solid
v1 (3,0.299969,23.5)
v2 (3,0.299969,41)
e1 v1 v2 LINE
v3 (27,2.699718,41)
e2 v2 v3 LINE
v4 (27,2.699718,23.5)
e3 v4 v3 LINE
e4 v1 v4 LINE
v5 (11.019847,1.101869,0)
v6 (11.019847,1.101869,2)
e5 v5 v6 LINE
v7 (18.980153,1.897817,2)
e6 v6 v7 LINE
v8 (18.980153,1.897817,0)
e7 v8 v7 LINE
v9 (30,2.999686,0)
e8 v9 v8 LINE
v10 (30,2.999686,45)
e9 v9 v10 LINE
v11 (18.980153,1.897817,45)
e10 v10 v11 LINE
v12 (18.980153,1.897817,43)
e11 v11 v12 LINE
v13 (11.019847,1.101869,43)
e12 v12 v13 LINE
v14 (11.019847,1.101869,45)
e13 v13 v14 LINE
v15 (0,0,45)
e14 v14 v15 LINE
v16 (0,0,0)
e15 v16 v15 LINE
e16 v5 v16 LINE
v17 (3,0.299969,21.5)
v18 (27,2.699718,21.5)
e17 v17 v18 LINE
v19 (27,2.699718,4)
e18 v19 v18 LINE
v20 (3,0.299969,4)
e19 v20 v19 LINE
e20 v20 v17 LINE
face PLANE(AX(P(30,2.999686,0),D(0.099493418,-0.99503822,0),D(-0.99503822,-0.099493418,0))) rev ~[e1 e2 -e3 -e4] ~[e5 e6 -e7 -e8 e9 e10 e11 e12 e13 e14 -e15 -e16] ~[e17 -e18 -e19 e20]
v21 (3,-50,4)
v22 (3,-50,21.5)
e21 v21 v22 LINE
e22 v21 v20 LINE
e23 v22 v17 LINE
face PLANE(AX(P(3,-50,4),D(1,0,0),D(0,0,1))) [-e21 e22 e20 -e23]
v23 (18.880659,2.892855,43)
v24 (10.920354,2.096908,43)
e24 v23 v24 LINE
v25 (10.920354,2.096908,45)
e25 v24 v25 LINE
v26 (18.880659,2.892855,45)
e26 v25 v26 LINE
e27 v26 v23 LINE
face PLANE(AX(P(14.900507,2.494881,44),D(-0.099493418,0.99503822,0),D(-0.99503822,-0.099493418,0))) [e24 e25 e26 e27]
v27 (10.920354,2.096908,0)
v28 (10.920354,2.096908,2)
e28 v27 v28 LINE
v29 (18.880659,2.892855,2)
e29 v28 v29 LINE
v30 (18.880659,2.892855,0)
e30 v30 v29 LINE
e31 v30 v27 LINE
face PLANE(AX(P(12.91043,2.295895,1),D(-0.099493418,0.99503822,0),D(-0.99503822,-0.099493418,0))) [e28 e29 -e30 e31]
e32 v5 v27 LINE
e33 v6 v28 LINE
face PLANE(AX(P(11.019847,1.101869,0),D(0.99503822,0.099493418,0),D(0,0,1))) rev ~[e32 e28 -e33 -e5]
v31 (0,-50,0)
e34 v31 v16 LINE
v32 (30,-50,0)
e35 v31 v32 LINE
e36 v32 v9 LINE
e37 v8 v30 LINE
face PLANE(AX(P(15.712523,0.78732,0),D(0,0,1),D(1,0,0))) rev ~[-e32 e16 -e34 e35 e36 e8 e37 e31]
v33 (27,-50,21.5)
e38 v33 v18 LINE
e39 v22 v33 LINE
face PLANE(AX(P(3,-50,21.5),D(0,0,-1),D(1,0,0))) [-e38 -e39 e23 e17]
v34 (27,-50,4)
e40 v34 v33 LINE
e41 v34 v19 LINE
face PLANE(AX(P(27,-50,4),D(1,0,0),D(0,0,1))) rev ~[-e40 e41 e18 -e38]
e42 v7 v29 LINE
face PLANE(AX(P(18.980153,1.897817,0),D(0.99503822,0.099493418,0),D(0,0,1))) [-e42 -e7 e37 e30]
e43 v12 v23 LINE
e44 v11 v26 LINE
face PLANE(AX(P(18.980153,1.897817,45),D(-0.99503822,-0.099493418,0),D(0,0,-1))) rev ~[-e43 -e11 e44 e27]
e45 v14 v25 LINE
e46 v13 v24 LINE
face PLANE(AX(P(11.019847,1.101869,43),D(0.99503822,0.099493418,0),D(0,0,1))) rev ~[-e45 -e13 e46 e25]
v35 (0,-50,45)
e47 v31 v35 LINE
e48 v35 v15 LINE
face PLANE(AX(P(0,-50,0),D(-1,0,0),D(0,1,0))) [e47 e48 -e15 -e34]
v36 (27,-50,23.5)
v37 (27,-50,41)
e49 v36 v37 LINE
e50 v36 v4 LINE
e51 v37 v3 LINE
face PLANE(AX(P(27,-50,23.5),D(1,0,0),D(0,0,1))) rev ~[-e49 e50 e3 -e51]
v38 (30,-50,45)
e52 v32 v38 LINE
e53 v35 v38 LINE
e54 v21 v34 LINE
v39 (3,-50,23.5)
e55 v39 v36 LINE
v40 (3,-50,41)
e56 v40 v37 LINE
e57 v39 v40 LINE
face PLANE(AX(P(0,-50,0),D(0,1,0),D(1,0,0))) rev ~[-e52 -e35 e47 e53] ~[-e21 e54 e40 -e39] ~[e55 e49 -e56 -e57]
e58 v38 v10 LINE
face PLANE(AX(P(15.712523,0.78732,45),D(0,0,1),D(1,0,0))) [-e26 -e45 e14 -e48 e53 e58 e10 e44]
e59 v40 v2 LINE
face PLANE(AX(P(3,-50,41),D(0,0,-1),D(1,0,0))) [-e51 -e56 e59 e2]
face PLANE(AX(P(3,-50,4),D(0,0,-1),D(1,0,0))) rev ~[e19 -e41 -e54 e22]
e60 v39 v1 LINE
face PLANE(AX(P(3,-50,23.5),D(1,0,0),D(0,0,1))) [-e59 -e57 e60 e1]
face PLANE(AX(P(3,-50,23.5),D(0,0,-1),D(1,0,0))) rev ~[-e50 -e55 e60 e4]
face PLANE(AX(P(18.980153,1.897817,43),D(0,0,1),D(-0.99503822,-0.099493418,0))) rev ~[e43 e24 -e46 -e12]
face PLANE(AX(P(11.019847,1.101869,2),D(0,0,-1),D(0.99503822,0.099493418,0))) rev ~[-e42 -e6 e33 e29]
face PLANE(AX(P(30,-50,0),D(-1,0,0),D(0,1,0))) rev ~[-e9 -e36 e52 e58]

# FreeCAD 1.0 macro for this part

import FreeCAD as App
import Part
import Sketcher

V = App.Vector
Q = App.Units.Quantity


def add_polygon(sketch, points):
    """Adds a closed chain of lines whose ends are joined by coincident constraints."""
    first, n = sketch.GeometryCount, len(points)
    for a, b in zip(points, points[1:] + points[:1]):
        sketch.addGeometry(Part.LineSegment(App.Vector(*a, 0), App.Vector(*b, 0)), False)
    for i in range(n):
        sketch.addConstraint(Sketcher.Constraint("Coincident", first + i, 2, first + (i + 1) % n, 1))

doc = App.newDocument("Part")
body = doc.addObject("PartDesign::Body", "Body")

# Sketch on XY plane
sketch1 = body.newObject("Sketcher::SketchObject", "Sketch")
sketch1.AttachmentSupport = (doc.getObject("XY_Plane"), [""])
sketch1.MapMode = "FlatFace"
add_polygon(sketch1, [(30, 2.999686), (0, 0), (0, -50), (30, -50)])  # lines 0-3
sketch1.addConstraint(Sketcher.Constraint("Vertical", 1))
sketch1.addConstraint(Sketcher.Constraint("Horizontal", 2))
sketch1.addConstraint(Sketcher.Constraint("Vertical", 3))
sketch1.addConstraint(Sketcher.Constraint("Coincident", 0, 2, -1, 1))
sketch1.addConstraint(Sketcher.Constraint("DistanceX", 2, 1, 2, 2, 30.0))
sketch1.addConstraint(Sketcher.Constraint("DistanceY", 1, 2, 1, 1, 50.0))
sketch1.addConstraint(Sketcher.Constraint("Angle", 0, Q("-174.29 deg")))
pad1 = body.newObject("PartDesign::Pad", "Pad")
pad1.Profile = sketch1
pad1.Length = 45

# Sketch on an angled plane
sketch2 = body.newObject("Sketcher::SketchObject", "Sketch001")
sketch2.Placement = App.Placement(V(0, 0, 0), App.Rotation(V(-0.99503822, -0.099493418, 0), V(0, 0, 0.999999999), V(-0.099493418, 0.99503822, 0), "ZXY"))
add_polygon(sketch2, [(-11.074798, 0), (-11.074798, 2), (-19.074798, 2), (-19.074798, 0)])  # lines 0-3
add_polygon(sketch2, [(-11.074798, 45), (-19.074798, 45), (-19.074798, 43), (-11.074798, 43)])  # lines 4-7
sketch2.addConstraint(Sketcher.Constraint("Vertical", 0))
sketch2.addConstraint(Sketcher.Constraint("Horizontal", 1))
sketch2.addConstraint(Sketcher.Constraint("Vertical", 2))
sketch2.addConstraint(Sketcher.Constraint("Horizontal", 3))
sketch2.addConstraint(Sketcher.Constraint("Horizontal", 4))
sketch2.addConstraint(Sketcher.Constraint("Vertical", 5))
sketch2.addConstraint(Sketcher.Constraint("Horizontal", 6))
sketch2.addConstraint(Sketcher.Constraint("Vertical", 7))
sketch2.addConstraint(Sketcher.Constraint("PointOnObject", 2, 2, -1))
sketch2.addConstraint(Sketcher.Constraint("Vertical", 2, 2, 4, 2))
sketch2.addConstraint(Sketcher.Constraint("Vertical", 3, 2, 6, 2))
sketch2.addConstraint(Sketcher.Constraint("Equal", 2, 5))
sketch2.addConstraint(Sketcher.Constraint("DistanceX", 1, 2, 1, 1, 8.0))
sketch2.addConstraint(Sketcher.Constraint("DistanceY", 0, 1, 0, 2, 2.0))
sketch2.addConstraint(Sketcher.Constraint("DistanceY", -1, 1, 4, 2, 45.0))
sketch2.addConstraint(Sketcher.Constraint("DistanceX", 0, 2, -1, 1, 11.074798))
pad2 = body.newObject("PartDesign::Pad", "Pad001")
pad2.Profile = sketch2
pad2.Length = 1

# Sketch on XZ plane
sketch3 = body.newObject("Sketcher::SketchObject", "Sketch002")
sketch3.AttachmentSupport = (doc.getObject("XZ_Plane"), [""])
sketch3.MapMode = "FlatFace"
sketch3.AttachmentOffset = App.Placement(V(0, 0, 50), App.Rotation())
add_polygon(sketch3, [(3, 21.5), (3, 4), (27, 4), (27, 21.5)])  # lines 0-3
add_polygon(sketch3, [(3, 41), (3, 23.5), (27, 23.5), (27, 41)])  # lines 4-7
sketch3.addConstraint(Sketcher.Constraint("Vertical", 0))
sketch3.addConstraint(Sketcher.Constraint("Horizontal", 1))
sketch3.addConstraint(Sketcher.Constraint("Vertical", 2))
sketch3.addConstraint(Sketcher.Constraint("Horizontal", 3))
sketch3.addConstraint(Sketcher.Constraint("Vertical", 4))
sketch3.addConstraint(Sketcher.Constraint("Horizontal", 5))
sketch3.addConstraint(Sketcher.Constraint("Vertical", 6))
sketch3.addConstraint(Sketcher.Constraint("Horizontal", 7))
sketch3.addConstraint(Sketcher.Constraint("Vertical", 3, 2, 4, 2))
sketch3.addConstraint(Sketcher.Constraint("Vertical", 2, 2, 5, 2))
sketch3.addConstraint(Sketcher.Constraint("Equal", 2, 4))
sketch3.addConstraint(Sketcher.Constraint("DistanceX", 1, 1, 1, 2, 24.0))
sketch3.addConstraint(Sketcher.Constraint("DistanceY", 0, 2, 0, 1, 17.5))
sketch3.addConstraint(Sketcher.Constraint("DistanceX", -1, 1, 0, 2, 3.0))
sketch3.addConstraint(Sketcher.Constraint("DistanceY", -1, 1, 0, 2, 4.0))
sketch3.addConstraint(Sketcher.Constraint("DistanceY", -1, 1, 6, 2, 41.0))
pocket1 = body.newObject("PartDesign::Pocket", "Pocket")
pocket1.Profile = sketch3
pocket1.Type = "ThroughAll"

doc.recompute()
